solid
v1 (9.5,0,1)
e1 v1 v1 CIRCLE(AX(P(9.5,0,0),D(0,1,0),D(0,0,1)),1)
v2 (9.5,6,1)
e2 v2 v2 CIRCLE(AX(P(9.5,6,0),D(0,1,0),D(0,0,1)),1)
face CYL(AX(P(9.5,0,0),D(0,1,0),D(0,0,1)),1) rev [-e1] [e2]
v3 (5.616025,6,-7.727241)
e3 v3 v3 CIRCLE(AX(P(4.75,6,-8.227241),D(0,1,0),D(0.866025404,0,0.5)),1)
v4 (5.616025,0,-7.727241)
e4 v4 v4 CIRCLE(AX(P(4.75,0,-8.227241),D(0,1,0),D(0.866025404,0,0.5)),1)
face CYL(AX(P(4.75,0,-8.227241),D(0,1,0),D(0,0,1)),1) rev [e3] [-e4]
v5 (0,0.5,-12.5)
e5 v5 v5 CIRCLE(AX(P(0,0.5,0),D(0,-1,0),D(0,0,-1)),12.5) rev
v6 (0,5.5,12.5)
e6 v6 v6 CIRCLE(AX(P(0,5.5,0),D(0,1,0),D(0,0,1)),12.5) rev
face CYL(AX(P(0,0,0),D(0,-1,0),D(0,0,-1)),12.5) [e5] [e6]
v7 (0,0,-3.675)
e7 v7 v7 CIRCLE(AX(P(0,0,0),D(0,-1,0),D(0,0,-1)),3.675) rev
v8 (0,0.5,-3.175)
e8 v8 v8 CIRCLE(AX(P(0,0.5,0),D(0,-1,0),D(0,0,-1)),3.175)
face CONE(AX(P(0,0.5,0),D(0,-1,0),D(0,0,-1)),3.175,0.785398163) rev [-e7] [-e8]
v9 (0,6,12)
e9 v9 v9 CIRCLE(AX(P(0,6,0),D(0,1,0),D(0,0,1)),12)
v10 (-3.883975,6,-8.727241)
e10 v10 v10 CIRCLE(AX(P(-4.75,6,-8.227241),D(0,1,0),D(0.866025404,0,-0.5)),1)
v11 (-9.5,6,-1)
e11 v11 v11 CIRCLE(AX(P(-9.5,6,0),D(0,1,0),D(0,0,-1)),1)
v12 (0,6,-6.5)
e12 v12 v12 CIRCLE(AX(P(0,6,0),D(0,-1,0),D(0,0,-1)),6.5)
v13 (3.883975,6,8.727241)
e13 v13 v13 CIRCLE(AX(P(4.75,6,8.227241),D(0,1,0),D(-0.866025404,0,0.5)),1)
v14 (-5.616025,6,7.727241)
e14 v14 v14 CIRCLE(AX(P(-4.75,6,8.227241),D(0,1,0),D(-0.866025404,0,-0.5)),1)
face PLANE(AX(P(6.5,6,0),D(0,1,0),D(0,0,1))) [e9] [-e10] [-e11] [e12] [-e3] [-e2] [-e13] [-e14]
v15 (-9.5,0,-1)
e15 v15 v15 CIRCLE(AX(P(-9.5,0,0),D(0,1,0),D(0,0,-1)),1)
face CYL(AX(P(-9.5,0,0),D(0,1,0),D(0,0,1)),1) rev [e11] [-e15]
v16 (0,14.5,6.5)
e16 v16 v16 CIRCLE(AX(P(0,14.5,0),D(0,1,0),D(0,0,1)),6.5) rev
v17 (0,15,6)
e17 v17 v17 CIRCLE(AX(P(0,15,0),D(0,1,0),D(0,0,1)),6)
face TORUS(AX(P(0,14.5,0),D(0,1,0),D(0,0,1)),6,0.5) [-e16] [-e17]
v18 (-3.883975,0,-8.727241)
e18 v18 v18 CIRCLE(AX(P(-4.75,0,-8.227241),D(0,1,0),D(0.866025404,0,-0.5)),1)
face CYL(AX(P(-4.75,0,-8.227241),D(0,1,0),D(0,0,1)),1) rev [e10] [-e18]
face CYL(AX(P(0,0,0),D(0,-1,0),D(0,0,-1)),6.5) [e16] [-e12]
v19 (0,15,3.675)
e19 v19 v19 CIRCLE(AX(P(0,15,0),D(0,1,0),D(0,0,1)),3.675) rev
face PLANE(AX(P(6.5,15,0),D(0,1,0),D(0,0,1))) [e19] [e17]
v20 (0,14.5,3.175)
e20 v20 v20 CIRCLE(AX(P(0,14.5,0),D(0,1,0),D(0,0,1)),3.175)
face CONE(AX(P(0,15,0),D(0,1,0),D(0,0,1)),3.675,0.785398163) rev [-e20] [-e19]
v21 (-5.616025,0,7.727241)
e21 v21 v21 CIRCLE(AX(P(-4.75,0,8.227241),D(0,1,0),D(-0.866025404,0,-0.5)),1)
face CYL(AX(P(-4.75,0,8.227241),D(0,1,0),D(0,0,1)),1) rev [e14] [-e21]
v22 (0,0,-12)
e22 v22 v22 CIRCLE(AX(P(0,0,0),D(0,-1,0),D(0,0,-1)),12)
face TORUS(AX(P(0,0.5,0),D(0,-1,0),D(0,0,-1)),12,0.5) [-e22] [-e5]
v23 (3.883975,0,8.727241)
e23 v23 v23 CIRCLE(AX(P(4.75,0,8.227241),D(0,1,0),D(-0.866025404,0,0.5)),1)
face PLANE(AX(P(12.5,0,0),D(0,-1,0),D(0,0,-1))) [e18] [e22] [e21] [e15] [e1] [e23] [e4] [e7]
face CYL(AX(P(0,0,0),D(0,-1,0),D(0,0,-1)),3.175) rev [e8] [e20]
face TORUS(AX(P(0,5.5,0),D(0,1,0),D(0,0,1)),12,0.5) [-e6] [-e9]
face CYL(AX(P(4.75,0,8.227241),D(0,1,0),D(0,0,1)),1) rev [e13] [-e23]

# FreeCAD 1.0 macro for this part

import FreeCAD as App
import Part
import Sketcher
from FreeCAD import Vector
Q = App.Units.Quantity


def edges_at(feature, points):
    """Names of the edges that pass closest to the given points."""
    edges = feature.Shape.Edges
    near = lambda p: min(range(len(edges)), key=lambda i: edges[i].distToShape(Part.Vertex(*p))[0])
    return sorted({f"Edge{near(p) + 1}" for p in points})


def add_polygon(sketch, points):
    """Adds a closed chain of lines whose ends are joined by coincident constraints."""
    first, n = sketch.GeometryCount, len(points)
    for a, b in zip(points, points[1:] + points[:1]):
        sketch.addGeometry(Part.LineSegment(App.Vector(*a, 0), App.Vector(*b, 0)), False)
    for i in range(n):
        sketch.addConstraint(Sketcher.Constraint("Coincident", first + i, 2, first + (i + 1) % n, 1))

doc = App.newDocument("Part")
body = doc.addObject("PartDesign::Body", "Body")

sketch1 = body.newObject("Sketcher::SketchObject", "Sketch")
sketch1.AttachmentSupport = (doc.getObject("XY_Plane"), [""])
sketch1.MapMode = "FlatFace"
add_polygon(sketch1, [(6.5, 6), (6.5, 15), (3.2, 15), (3.2, 0), (12.5, 0), (12.5, 6)])
sketch1.addConstraint(Sketcher.Constraint("Vertical", 0))
sketch1.addConstraint(Sketcher.Constraint("Horizontal", 1))
sketch1.addConstraint(Sketcher.Constraint("Vertical", 2))
sketch1.addConstraint(Sketcher.Constraint("Horizontal", 3))
sketch1.addConstraint(Sketcher.Constraint("Vertical", 4))
sketch1.addConstraint(Sketcher.Constraint("Horizontal", 5))
sketch1.addConstraint(Sketcher.Constraint("PointOnObject", 2, 2, -1))
sketch1.addConstraint(Sketcher.Constraint("Equal", 5, 4))
sketch1.addConstraint(Sketcher.Constraint("DistanceX", 5, 2, 5, 1, Q("6 mm")))
sketch1.addConstraint(Sketcher.Constraint("DistanceY", 0, 1, 0, 2, Q("9 mm")))
sketch1.addConstraint(Sketcher.Constraint("DistanceX", -1, 1, 0, 2, Q("6.5 mm")))
sketch1.addConstraint(Sketcher.Constraint("DistanceX", 1, 2, 1, 1, Q("3.325 mm")))
revolution = body.newObject("PartDesign::Revolution", "Revolution")
revolution.Profile = sketch1
revolution.ReferenceAxis = (sketch1, ["V_Axis"])
revolution.Angle = 360

sketch2 = body.newObject("Sketcher::SketchObject", "Sketch001")
sketch2.AttachmentSupport = (doc.getObject("XZ_Plane"), [""])
sketch2.MapMode = "FlatFace"
sketch2.AttachmentOffset = App.Placement(Vector(0, 0, -6), App.Rotation())
sketch2.addGeometry(Part.Circle(Vector(9.5, 0, 0), Vector(0, 0, 1), 1), False)
sketch2.addConstraint(Sketcher.Constraint("PointOnObject", 0, 3, -1))
sketch2.addConstraint(Sketcher.Constraint("Diameter", 0, Q("2 mm")))
sketch2.addConstraint(Sketcher.Constraint("DistanceX", -1, 1, 0, 3, Q("9.5 mm")))
pocket1 = body.newObject("PartDesign::Pocket", "Pocket")
pocket1.Profile = sketch2
pocket1.Type = "ThroughAll"
pocket1.Reversed = True
doc.recompute()

polarpattern = body.newObject("PartDesign::PolarPattern", "PolarPattern")
polarpattern.Originals = [pocket1]
polarpattern.Axis = (doc.getObject("Y_Axis"), [""])
polarpattern.Angle = 360
polarpattern.Occurrences = 6
body.Tip = polarpattern
doc.recompute()

fillet = body.newObject("PartDesign::Fillet", "Fillet")
fillet.Base = (polarpattern, edges_at(polarpattern, [(-6.5, 15, 0), (-12.5, 6, 0), (-12.5, 0, 0)]))
fillet.Radius = 0.5
doc.recompute()

chamfer = body.newObject("PartDesign::Chamfer", "Chamfer")
chamfer.Base = (fillet, edges_at(fillet, [(-3.175, 0, 0), (-3.175, 15, 0)]))
chamfer.Size = 0.5

doc.recompute()
